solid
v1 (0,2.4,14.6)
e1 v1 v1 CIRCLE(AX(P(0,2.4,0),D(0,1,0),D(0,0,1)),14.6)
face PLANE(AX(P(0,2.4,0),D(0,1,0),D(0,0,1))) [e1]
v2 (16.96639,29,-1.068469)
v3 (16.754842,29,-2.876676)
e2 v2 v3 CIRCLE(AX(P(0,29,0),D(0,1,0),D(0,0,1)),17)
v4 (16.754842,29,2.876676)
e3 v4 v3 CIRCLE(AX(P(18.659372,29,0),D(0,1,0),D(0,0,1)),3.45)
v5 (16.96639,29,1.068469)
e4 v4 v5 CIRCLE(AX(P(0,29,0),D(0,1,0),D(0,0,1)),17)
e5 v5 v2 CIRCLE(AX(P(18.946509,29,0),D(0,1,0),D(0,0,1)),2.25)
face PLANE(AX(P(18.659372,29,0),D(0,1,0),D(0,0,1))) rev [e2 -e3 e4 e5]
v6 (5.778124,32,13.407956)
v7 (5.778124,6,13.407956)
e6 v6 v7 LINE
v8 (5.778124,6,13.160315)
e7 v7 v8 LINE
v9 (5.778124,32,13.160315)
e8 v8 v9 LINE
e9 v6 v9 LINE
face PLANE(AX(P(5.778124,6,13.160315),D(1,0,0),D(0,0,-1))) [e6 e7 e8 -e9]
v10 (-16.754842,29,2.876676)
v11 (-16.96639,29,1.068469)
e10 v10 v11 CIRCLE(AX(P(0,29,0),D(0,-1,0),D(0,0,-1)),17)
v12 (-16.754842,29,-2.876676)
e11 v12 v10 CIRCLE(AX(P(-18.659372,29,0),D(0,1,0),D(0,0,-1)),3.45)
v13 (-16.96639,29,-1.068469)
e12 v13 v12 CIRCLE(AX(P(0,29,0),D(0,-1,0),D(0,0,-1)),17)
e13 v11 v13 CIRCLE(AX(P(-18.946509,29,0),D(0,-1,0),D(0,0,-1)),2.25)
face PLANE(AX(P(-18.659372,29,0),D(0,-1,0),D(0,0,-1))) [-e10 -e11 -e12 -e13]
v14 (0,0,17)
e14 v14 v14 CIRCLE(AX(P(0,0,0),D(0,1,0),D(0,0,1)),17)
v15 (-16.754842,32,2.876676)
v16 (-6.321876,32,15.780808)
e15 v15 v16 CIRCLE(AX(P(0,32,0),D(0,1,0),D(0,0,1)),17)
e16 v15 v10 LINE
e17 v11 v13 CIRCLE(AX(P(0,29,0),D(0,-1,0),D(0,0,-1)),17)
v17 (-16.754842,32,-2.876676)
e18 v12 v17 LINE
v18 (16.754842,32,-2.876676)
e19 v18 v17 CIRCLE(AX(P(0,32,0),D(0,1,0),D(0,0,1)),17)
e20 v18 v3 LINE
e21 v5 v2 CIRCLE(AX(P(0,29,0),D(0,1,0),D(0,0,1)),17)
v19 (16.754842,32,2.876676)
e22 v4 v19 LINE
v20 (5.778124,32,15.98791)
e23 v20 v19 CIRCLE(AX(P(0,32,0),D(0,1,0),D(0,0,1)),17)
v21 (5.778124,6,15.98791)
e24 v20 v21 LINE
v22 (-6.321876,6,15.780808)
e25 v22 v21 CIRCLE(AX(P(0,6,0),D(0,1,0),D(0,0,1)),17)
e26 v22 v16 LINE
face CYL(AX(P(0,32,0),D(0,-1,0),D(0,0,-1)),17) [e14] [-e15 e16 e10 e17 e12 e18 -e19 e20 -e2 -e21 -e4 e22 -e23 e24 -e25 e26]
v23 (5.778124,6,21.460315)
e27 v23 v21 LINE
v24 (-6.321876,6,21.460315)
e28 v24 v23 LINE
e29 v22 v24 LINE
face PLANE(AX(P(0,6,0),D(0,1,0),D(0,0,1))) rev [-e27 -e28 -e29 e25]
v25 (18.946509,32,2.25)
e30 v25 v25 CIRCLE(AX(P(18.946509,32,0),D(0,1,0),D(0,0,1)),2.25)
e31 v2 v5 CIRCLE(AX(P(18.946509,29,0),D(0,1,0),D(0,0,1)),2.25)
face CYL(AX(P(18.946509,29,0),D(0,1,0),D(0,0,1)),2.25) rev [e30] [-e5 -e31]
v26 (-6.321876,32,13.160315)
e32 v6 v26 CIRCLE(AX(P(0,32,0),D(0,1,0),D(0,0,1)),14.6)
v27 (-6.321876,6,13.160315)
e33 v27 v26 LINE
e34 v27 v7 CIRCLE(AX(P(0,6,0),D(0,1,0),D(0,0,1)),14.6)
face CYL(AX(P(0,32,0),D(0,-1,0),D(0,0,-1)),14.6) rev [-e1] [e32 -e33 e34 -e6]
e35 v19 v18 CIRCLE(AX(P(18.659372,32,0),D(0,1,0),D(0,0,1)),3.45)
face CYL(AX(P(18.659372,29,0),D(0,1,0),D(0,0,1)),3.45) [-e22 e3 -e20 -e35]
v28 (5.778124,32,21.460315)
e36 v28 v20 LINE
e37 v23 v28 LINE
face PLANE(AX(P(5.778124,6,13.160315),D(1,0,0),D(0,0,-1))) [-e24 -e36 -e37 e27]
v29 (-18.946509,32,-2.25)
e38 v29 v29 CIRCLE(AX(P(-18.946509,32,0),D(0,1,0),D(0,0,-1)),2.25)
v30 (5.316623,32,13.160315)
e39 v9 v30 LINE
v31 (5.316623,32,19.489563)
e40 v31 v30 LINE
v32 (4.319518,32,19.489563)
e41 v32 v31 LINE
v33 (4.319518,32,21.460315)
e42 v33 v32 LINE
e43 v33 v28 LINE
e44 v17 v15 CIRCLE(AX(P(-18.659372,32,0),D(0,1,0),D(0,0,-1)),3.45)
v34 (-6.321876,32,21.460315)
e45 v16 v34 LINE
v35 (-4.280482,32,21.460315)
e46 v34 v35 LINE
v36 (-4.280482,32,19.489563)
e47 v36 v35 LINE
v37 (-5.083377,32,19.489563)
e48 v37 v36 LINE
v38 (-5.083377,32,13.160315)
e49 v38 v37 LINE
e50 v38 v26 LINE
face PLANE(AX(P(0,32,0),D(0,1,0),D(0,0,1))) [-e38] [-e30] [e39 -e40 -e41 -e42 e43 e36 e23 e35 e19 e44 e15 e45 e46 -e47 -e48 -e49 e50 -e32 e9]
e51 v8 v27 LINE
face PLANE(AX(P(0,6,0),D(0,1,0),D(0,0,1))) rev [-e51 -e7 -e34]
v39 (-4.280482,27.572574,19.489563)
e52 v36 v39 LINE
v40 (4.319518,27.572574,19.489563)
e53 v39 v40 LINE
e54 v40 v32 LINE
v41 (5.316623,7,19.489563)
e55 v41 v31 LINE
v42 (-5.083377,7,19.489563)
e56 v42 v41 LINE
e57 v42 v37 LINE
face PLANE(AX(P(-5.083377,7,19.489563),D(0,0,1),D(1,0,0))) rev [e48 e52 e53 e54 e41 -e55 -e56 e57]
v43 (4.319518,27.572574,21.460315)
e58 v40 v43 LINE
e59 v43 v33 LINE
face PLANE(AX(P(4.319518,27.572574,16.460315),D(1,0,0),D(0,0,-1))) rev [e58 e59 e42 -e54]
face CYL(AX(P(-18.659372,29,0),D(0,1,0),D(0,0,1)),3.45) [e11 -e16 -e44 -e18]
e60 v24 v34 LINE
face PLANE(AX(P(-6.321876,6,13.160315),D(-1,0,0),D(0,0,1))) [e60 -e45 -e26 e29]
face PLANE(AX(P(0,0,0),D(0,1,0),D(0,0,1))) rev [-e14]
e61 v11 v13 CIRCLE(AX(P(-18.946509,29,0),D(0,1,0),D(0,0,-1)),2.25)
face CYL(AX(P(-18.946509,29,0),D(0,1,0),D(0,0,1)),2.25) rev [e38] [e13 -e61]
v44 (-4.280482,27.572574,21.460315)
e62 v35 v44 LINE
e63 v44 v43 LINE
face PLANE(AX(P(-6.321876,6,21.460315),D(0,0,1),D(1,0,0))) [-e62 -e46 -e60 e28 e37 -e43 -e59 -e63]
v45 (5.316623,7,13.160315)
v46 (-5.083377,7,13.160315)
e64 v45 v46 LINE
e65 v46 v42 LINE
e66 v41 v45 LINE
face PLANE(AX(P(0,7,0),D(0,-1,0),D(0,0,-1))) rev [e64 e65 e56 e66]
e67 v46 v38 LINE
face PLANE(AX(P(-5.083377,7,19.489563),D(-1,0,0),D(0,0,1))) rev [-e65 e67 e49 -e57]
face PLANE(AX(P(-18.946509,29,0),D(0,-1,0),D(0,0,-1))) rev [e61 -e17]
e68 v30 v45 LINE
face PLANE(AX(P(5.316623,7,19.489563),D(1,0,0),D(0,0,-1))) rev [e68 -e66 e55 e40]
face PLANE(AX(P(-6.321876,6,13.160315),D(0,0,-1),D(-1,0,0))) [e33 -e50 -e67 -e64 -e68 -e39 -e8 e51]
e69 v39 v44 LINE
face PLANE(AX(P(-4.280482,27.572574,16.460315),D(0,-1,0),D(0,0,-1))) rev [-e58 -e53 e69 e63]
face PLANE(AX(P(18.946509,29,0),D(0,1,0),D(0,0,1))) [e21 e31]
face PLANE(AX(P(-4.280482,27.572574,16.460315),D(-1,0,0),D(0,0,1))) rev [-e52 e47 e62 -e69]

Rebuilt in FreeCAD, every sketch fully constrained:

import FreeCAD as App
import Part
import Sketcher

V = App.Vector
Q = App.Units.Quantity


def faces_at(feature, points):
    """Names of the faces that lie closest to the given points."""
    faces = feature.Shape.Faces
    near = lambda p: min(range(len(faces)), key=lambda i: faces[i].distToShape(Part.Vertex(*p))[0])
    return sorted({f"Face{near(p) + 1}" for p in points})

doc = App.newDocument("Part")
body = doc.addObject("PartDesign::Body", "Body")

# Sketch on XZ plane
sketch1 = doc.addObject("Sketcher::SketchObject", "Sketch")
body.addObject(sketch1)
sketch1.AttachmentSupport = (doc.XZ_Plane, [""])
sketch1.MapMode = "FlatFace"
sketch1.addGeometry(Part.Circle(V(0, 0, 0), V(0, 0, 1), 17), False)
sketch1.addConstraint(Sketcher.Constraint("Coincident", 0, 3, -1, 1))
sketch1.addConstraint(Sketcher.Constraint("Diameter", 0, Q("34 mm")))
pad1 = doc.addObject("PartDesign::Pad", "Pad")
body.addObject(pad1)
pad1.Profile = sketch1
pad1.Length = 32
pad1.Reversed = True
doc.recompute()

thickness = doc.addObject("PartDesign::Thickness", "Thickness")
body.addObject(thickness)
thickness.Base = (pad1, faces_at(pad1, [(0, 32, 0)]))
thickness.Value = 2.4
thickness.Reversed = True
thickness.Join = "Intersection"

# Sketch on XZ plane
sketch2 = doc.addObject("Sketcher::SketchObject", "Sketch001")
body.addObject(sketch2)
sketch2.AttachmentSupport = (doc.XZ_Plane, [""])
sketch2.MapMode = "FlatFace"
sketch2.AttachmentOffset = App.Placement(V(0, 0, -32), App.Rotation())
sketch2.addGeometry(Part.Circle(V(18.659372, 0, 0), V(0, 0, 1), 3.45), False)
sketch2.addGeometry(Part.Circle(V(-18.659372, 0, 0), V(0, 0, 1), 3.45), False)
sketch2.addConstraint(Sketcher.Constraint("Equal", 0, 1))
sketch2.addConstraint(Sketcher.Constraint("Symmetric", 0, 3, 1, 3, -1, 1))
sketch2.addConstraint(Sketcher.Constraint("PointOnObject", 0, 3, -1))
sketch2.addConstraint(Sketcher.Constraint("Diameter", 0, Q("6.9 mm")))
sketch2.addConstraint(Sketcher.Constraint("DistanceX", -1, 1, 0, 3, Q("18.659372 mm")))
pad2 = doc.addObject("PartDesign::Pad", "Pad001")
body.addObject(pad2)
pad2.Profile = sketch2
pad2.Length = 3

# Sketch on XZ plane
sketch3 = doc.addObject("Sketcher::SketchObject", "Sketch002")
body.addObject(sketch3)
sketch3.AttachmentSupport = (doc.XZ_Plane, [""])
sketch3.MapMode = "FlatFace"
sketch3.AttachmentOffset = App.Placement(V(0, 0, -32), App.Rotation())
sketch3.addGeometry(Part.Circle(V(18.946509, 0, 0), V(0, 0, 1), 2.25), False)
sketch3.addGeometry(Part.Circle(V(-18.946509, 0, 0), V(0, 0, 1), 2.25), False)
sketch3.addConstraint(Sketcher.Constraint("Equal", 0, 1))
sketch3.addConstraint(Sketcher.Constraint("Symmetric", 0, 3, 1, 3, -1, 1))
sketch3.addConstraint(Sketcher.Constraint("PointOnObject", 0, 3, -1))
sketch3.addConstraint(Sketcher.Constraint("Diameter", 0, Q("4.5 mm")))
sketch3.addConstraint(Sketcher.Constraint("DistanceX", -1, 1, 0, 3, Q("18.946509 mm")))
pocket1 = doc.addObject("PartDesign::Pocket", "Pocket")
body.addObject(pocket1)
pocket1.Profile = sketch3
pocket1.Length = 3
pocket1.Reversed = True

# Sketch on XZ plane
sketch4 = doc.addObject("Sketcher::SketchObject", "Sketch003")
body.addObject(sketch4)
sketch4.AttachmentSupport = (doc.XZ_Plane, [""])
sketch4.MapMode = "FlatFace"
sketch4.AttachmentOffset = App.Placement(V(0, 0, -32), App.Rotation())
sketch4.addGeometry(Part.LineSegment(V(-6.321876, 13.160315, 0), V(-6.321876, 21.460315, 0)), False)
sketch4.addGeometry(Part.LineSegment(V(-6.321876, 21.460315, 0), V(5.778124, 21.460315, 0)), False)
sketch4.addGeometry(Part.LineSegment(V(5.778124, 21.460315, 0), V(5.778124, 13.160315, 0)), False)
sketch4.addGeometry(Part.LineSegment(V(5.778124, 13.160315, 0), V(-6.321876, 13.160315, 0)), False)
sketch4.addConstraint(Sketcher.Constraint("Coincident", 0, 2, 1, 1))
sketch4.addConstraint(Sketcher.Constraint("Coincident", 1, 2, 2, 1))
sketch4.addConstraint(Sketcher.Constraint("Coincident", 2, 2, 3, 1))
sketch4.addConstraint(Sketcher.Constraint("Coincident", 3, 2, 0, 1))
sketch4.addConstraint(Sketcher.Constraint("Vertical", 0))
sketch4.addConstraint(Sketcher.Constraint("Horizontal", 1))
sketch4.addConstraint(Sketcher.Constraint("Vertical", 2))
sketch4.addConstraint(Sketcher.Constraint("Horizontal", 3))
sketch4.addConstraint(Sketcher.Constraint("DistanceX", 1, 1, 1, 2, Q("12.1 mm")))
sketch4.addConstraint(Sketcher.Constraint("DistanceY", 0, 1, 0, 2, Q("8.3 mm")))
sketch4.addConstraint(Sketcher.Constraint("DistanceX", 0, 2, -1, 1, Q("6.321876 mm")))
sketch4.addConstraint(Sketcher.Constraint("DistanceY", -1, 1, 0, 2, Q("21.460315 mm")))
pad3 = doc.addObject("PartDesign::Pad", "Pad002")
body.addObject(pad3)
pad3.Profile = sketch4
pad3.Length = 26

# Sketch on XZ plane
sketch5 = doc.addObject("Sketcher::SketchObject", "Sketch004")
body.addObject(sketch5)
sketch5.AttachmentSupport = (doc.XZ_Plane, [""])
sketch5.MapMode = "FlatFace"
sketch5.AttachmentOffset = App.Placement(V(0, 0, -32), App.Rotation())
sketch5.addGeometry(Part.LineSegment(V(-5.083377, 10.889563, 0), V(-5.083377, 19.489563, 0)), False)
sketch5.addGeometry(Part.LineSegment(V(-5.083377, 19.489563, 0), V(5.316623, 19.489563, 0)), False)
sketch5.addGeometry(Part.LineSegment(V(5.316623, 19.489563, 0), V(5.316623, 10.889563, 0)), False)
sketch5.addGeometry(Part.LineSegment(V(5.316623, 10.889563, 0), V(-5.083377, 10.889563, 0)), False)
sketch5.addConstraint(Sketcher.Constraint("Coincident", 0, 2, 1, 1))
sketch5.addConstraint(Sketcher.Constraint("Coincident", 1, 2, 2, 1))
sketch5.addConstraint(Sketcher.Constraint("Coincident", 2, 2, 3, 1))
sketch5.addConstraint(Sketcher.Constraint("Coincident", 3, 2, 0, 1))
sketch5.addConstraint(Sketcher.Constraint("Vertical", 0))
sketch5.addConstraint(Sketcher.Constraint("Horizontal", 1))
sketch5.addConstraint(Sketcher.Constraint("Vertical", 2))
sketch5.addConstraint(Sketcher.Constraint("Horizontal", 3))
sketch5.addConstraint(Sketcher.Constraint("DistanceX", 1, 1, 1, 2, Q("10.4 mm")))
sketch5.addConstraint(Sketcher.Constraint("DistanceY", 0, 1, 0, 2, Q("8.6 mm")))
sketch5.addConstraint(Sketcher.Constraint("DistanceX", 0, 2, -1, 1, Q("5.083377 mm")))
sketch5.addConstraint(Sketcher.Constraint("DistanceY", -1, 1, 0, 2, Q("19.489563 mm")))
pocket2 = doc.addObject("PartDesign::Pocket", "Pocket001")
body.addObject(pocket2)
pocket2.Profile = sketch5
pocket2.Length = 25
pocket2.Reversed = True

# Sketch on XY plane
sketch6 = doc.addObject("Sketcher::SketchObject", "Sketch005")
body.addObject(sketch6)
sketch6.AttachmentSupport = (doc.XY_Plane, [""])
sketch6.MapMode = "FlatFace"
sketch6.AttachmentOffset = App.Placement(V(0, 0, 21.460315), App.Rotation())
sketch6.addGeometry(Part.LineSegment(V(-4.280482, 33.372574, 0), V(-4.280482, 27.572574, 0)), False)
sketch6.addGeometry(Part.LineSegment(V(-4.280482, 27.572574, 0), V(4.319518, 27.572574, 0)), False)
sketch6.addGeometry(Part.LineSegment(V(4.319518, 27.572574, 0), V(4.319518, 33.372574, 0)), False)
sketch6.addGeometry(Part.LineSegment(V(4.319518, 33.372574, 0), V(-4.280482, 33.372574, 0)), False)
sketch6.addConstraint(Sketcher.Constraint("Coincident", 0, 2, 1, 1))
sketch6.addConstraint(Sketcher.Constraint("Coincident", 1, 2, 2, 1))
sketch6.addConstraint(Sketcher.Constraint("Coincident", 2, 2, 3, 1))
sketch6.addConstraint(Sketcher.Constraint("Coincident", 3, 2, 0, 1))
sketch6.addConstraint(Sketcher.Constraint("Vertical", 0))
sketch6.addConstraint(Sketcher.Constraint("Horizontal", 1))
sketch6.addConstraint(Sketcher.Constraint("Vertical", 2))
sketch6.addConstraint(Sketcher.Constraint("Horizontal", 3))
sketch6.addConstraint(Sketcher.Constraint("DistanceX", 1, 1, 1, 2, Q("8.6 mm")))
sketch6.addConstraint(Sketcher.Constraint("DistanceY", 0, 2, 0, 1, Q("5.8 mm")))
sketch6.addConstraint(Sketcher.Constraint("DistanceX", 0, 2, -1, 1, Q("4.280482 mm")))
sketch6.addConstraint(Sketcher.Constraint("DistanceY", -1, 1, 0, 2, Q("27.572574 mm")))
pocket3 = doc.addObject("PartDesign::Pocket", "Pocket002")
body.addObject(pocket3)
pocket3.Profile = sketch6
pocket3.Length = 5

doc.recompute()
